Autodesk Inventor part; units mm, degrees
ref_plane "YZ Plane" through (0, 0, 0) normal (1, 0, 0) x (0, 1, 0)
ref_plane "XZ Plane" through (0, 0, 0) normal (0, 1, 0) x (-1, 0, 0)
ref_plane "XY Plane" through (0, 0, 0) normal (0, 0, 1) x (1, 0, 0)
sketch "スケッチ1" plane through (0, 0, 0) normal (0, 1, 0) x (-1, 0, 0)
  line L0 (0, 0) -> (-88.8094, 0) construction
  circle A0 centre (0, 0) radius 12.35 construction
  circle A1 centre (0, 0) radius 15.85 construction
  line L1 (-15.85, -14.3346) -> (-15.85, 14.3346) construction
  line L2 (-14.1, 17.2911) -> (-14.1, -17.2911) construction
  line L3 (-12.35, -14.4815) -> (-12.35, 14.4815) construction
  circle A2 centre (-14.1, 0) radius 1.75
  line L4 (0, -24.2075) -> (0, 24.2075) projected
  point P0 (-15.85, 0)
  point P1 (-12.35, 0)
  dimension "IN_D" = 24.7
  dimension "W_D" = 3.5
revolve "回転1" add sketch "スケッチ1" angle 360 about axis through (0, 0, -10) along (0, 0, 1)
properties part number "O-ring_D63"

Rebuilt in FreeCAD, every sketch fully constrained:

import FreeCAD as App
import Part
import Sketcher

doc = App.newDocument("Part")
body = doc.addObject("PartDesign::Body", "Body")

# Sketch on XZ plane
sketch1 = body.newObject("Sketcher::SketchObject", "Sketch")
sketch1.AttachmentSupport = (doc.getObject("XZ_Plane"), [""])
sketch1.MapMode = "FlatFace"
sketch1.addGeometry(Part.Circle(App.Vector(14.1, 0, 0), App.Vector(0, 0, 1), 1.8), False)
sketch1.addConstraint(Sketcher.Constraint("PointOnObject", 0, 3, -1))
sketch1.addConstraint(Sketcher.Constraint("Diameter", 0, 3.5))
sketch1.addConstraint(Sketcher.Constraint("DistanceX", -1, 1, 0, 3, 14.1))
revolution = body.newObject("PartDesign::Revolution", "Revolution")
revolution.Profile = sketch1
revolution.ReferenceAxis = (sketch1, ["V_Axis"])
revolution.Angle = 360

doc.recompute()
